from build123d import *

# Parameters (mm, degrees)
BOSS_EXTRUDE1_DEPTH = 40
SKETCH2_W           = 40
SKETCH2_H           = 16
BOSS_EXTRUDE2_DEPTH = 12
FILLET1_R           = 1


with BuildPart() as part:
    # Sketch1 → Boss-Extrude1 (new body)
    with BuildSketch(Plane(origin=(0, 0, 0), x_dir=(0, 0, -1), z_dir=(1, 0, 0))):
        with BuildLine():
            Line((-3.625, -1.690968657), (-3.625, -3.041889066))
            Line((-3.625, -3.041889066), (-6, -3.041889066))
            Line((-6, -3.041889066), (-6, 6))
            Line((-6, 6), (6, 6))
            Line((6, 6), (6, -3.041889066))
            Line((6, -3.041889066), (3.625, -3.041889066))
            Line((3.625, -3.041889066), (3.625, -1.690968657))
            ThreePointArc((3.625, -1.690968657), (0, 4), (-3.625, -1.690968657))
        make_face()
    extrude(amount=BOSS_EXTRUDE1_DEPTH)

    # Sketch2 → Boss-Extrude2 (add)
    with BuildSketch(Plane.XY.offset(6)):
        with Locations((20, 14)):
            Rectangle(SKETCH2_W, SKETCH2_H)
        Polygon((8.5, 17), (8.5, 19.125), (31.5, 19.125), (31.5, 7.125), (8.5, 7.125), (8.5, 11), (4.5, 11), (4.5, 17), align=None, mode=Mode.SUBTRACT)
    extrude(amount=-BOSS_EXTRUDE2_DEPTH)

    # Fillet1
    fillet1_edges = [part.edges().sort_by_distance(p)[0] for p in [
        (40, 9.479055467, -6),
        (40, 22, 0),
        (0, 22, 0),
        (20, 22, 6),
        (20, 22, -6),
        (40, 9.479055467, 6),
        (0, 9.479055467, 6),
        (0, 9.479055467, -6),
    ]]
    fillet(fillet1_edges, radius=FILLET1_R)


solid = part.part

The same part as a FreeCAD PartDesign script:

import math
import FreeCAD as App
import Part
import Sketcher
from FreeCAD import Vector
Q = App.Units.Quantity


def edges_at(feature, points):
    """Names of the edges that pass closest to the given points."""
    edges = feature.Shape.Edges
    near = lambda p: min(range(len(edges)), key=lambda i: edges[i].distToShape(Part.Vertex(*p))[0])
    return sorted({f"Edge{near(p) + 1}" for p in points})

doc = App.newDocument("Part")
params = doc.addObject("Spreadsheet::Sheet", "Params")
for row, (alias, value) in enumerate([
    ("sketch1_radius", "4 mm"),
    ("sketch1_height", "12 mm"),
    ("pad1_length", "40 mm"),
    ("sketch2_width", "40 mm"),
    ("sketch2_width2", "4 mm"),
    ("sketch2_width3", "23 mm"),
    ("sketch2_height", "16 mm"),
    ("sketch2_height2", "12 mm"),
    ("pad2_length", "12 mm"),
    ("fillet_radius", "1 mm"),
], start=1):
    params.set(f"A{row}", alias)
    params.set(f"B{row}", "=" + value)
    params.setAlias(f"B{row}", alias)

body = doc.addObject("PartDesign::Body", "Body")

# Sketch on YZ plane
sketch1 = doc.addObject("Sketcher::SketchObject", "Sketch")
body.addObject(sketch1)
sketch1.AttachmentSupport = (doc.YZ_Plane, [""])
sketch1.MapMode = "FlatFace"
sketch1.addGeometry(Part.LineSegment(Vector(-3, 3.6, 0), Vector(-1.7, 3.6, 0)), False)
sketch1.addGeometry(Part.ArcOfCircle(Part.Circle(Vector(0, 0, 0), Vector(0, 0, 1), 4), math.radians(-115), math.radians(115)), False)
sketch1.addGeometry(Part.LineSegment(Vector(-1.7, -3.6, 0), Vector(-3, -3.6, 0)), False)
sketch1.addGeometry(Part.LineSegment(Vector(-3, -3.6, 0), Vector(-3, -6, 0)), False)
sketch1.addGeometry(Part.LineSegment(Vector(-3, -6, 0), Vector(6, -6, 0)), False)
sketch1.addGeometry(Part.LineSegment(Vector(6, -6, 0), Vector(6, 6, 0)), False)
sketch1.addGeometry(Part.LineSegment(Vector(6, 6, 0), Vector(-3, 6, 0)), False)
sketch1.addGeometry(Part.LineSegment(Vector(-3, 6, 0), Vector(-3, 3.6, 0)), False)
sketch1.addConstraint(Sketcher.Constraint("Coincident", 0, 2, 1, 2))
sketch1.addConstraint(Sketcher.Constraint("Coincident", 1, 1, 2, 1))
sketch1.addConstraint(Sketcher.Constraint("Coincident", 2, 2, 3, 1))
sketch1.addConstraint(Sketcher.Constraint("Coincident", 3, 2, 4, 1))
sketch1.addConstraint(Sketcher.Constraint("Coincident", 4, 2, 5, 1))
sketch1.addConstraint(Sketcher.Constraint("Coincident", 5, 2, 6, 1))
sketch1.addConstraint(Sketcher.Constraint("Coincident", 6, 2, 7, 1))
sketch1.addConstraint(Sketcher.Constraint("Coincident", 7, 2, 0, 1))
sketch1.addConstraint(Sketcher.Constraint("Horizontal", 0))
sketch1.addConstraint(Sketcher.Constraint("Horizontal", 2))
sketch1.addConstraint(Sketcher.Constraint("Vertical", 3))
sketch1.addConstraint(Sketcher.Constraint("Horizontal", 4))
sketch1.addConstraint(Sketcher.Constraint("Vertical", 5))
sketch1.addConstraint(Sketcher.Constraint("Horizontal", 6))
sketch1.addConstraint(Sketcher.Constraint("Vertical", 7))
sketch1.addConstraint(Sketcher.Constraint("Coincident", 1, 3, -1, 1))
sketch1.addConstraint(Sketcher.Constraint("Symmetric", 3, 2, 6, 2, -1))
sketch1.addConstraint(Sketcher.Constraint("Vertical", 0, 2, 1, 1))
sketch1.addConstraint(Sketcher.Constraint("Radius", 1, Q("4 mm")))
sketch1.addConstraint(Sketcher.Constraint("DistanceY", 5, 1, 5, 2, Q("12 mm")))
sketch1.addConstraint(Sketcher.Constraint("DistanceX", -1, 1, 4, 2, Q("6 mm")))
sketch1.addConstraint(Sketcher.Constraint("DistanceY", 3, 2, 3, 1, Q("2.375 mm")))
sketch1.addConstraint(Sketcher.Constraint("DistanceX", 0, 1, 0, 2, Q("1.35092 mm")))
sketch1.setExpression("Constraints[18]", "Params.sketch1_radius")
sketch1.setExpression("Constraints[19]", "Params.sketch1_height")
pad1 = doc.addObject("PartDesign::Pad", "Pad")
body.addObject(pad1)
pad1.Profile = sketch1
pad1.setExpression("Length", "Params.pad1_length")

# Sketch on XY plane
sketch2 = doc.addObject("Sketcher::SketchObject", "Sketch001")
body.addObject(sketch2)
sketch2.AttachmentSupport = (doc.XY_Plane, [""])
sketch2.MapMode = "FlatFace"
sketch2.AttachmentOffset = App.Placement(Vector(0, 0, 6), App.Rotation())
sketch2.addGeometry(Part.LineSegment(Vector(0, 22, 0), Vector(0, 6, 0)), False)
sketch2.addGeometry(Part.LineSegment(Vector(0, 6, 0), Vector(40, 6, 0)), False)
sketch2.addGeometry(Part.LineSegment(Vector(40, 6, 0), Vector(40, 22, 0)), False)
sketch2.addGeometry(Part.LineSegment(Vector(40, 22, 0), Vector(0, 22, 0)), False)
sketch2.addGeometry(Part.LineSegment(Vector(4.5, 17, 0), Vector(8.5, 17, 0)), False)
sketch2.addGeometry(Part.LineSegment(Vector(8.5, 17, 0), Vector(8.5, 19.1, 0)), False)
sketch2.addGeometry(Part.LineSegment(Vector(8.5, 19.1, 0), Vector(31.5, 19.1, 0)), False)
sketch2.addGeometry(Part.LineSegment(Vector(31.5, 19.1, 0), Vector(31.5, 7.1, 0)), False)
sketch2.addGeometry(Part.LineSegment(Vector(31.5, 7.1, 0), Vector(8.5, 7.1, 0)), False)
sketch2.addGeometry(Part.LineSegment(Vector(8.5, 7.1, 0), Vector(8.5, 11, 0)), False)
sketch2.addGeometry(Part.LineSegment(Vector(8.5, 11, 0), Vector(4.5, 11, 0)), False)
sketch2.addGeometry(Part.LineSegment(Vector(4.5, 11, 0), Vector(4.5, 17, 0)), False)
sketch2.addConstraint(Sketcher.Constraint("Coincident", 0, 2, 1, 1))
sketch2.addConstraint(Sketcher.Constraint("Coincident", 1, 2, 2, 1))
sketch2.addConstraint(Sketcher.Constraint("Coincident", 2, 2, 3, 1))
sketch2.addConstraint(Sketcher.Constraint("Coincident", 3, 2, 0, 1))
sketch2.addConstraint(Sketcher.Constraint("Coincident", 4, 2, 5, 1))
sketch2.addConstraint(Sketcher.Constraint("Coincident", 5, 2, 6, 1))
sketch2.addConstraint(Sketcher.Constraint("Coincident", 6, 2, 7, 1))
sketch2.addConstraint(Sketcher.Constraint("Coincident", 7, 2, 8, 1))
sketch2.addConstraint(Sketcher.Constraint("Coincident", 8, 2, 9, 1))
sketch2.addConstraint(Sketcher.Constraint("Coincident", 9, 2, 10, 1))
sketch2.addConstraint(Sketcher.Constraint("Coincident", 10, 2, 11, 1))
sketch2.addConstraint(Sketcher.Constraint("Coincident", 11, 2, 4, 1))
sketch2.addConstraint(Sketcher.Constraint("Vertical", 0))
sketch2.addConstraint(Sketcher.Constraint("Horizontal", 1))
sketch2.addConstraint(Sketcher.Constraint("Vertical", 2))
sketch2.addConstraint(Sketcher.Constraint("Horizontal", 3))
sketch2.addConstraint(Sketcher.Constraint("Horizontal", 4))
sketch2.addConstraint(Sketcher.Constraint("Vertical", 5))
sketch2.addConstraint(Sketcher.Constraint("Horizontal", 6))
sketch2.addConstraint(Sketcher.Constraint("Vertical", 7))
sketch2.addConstraint(Sketcher.Constraint("Horizontal", 8))
sketch2.addConstraint(Sketcher.Constraint("Vertical", 9))
sketch2.addConstraint(Sketcher.Constraint("Horizontal", 10))
sketch2.addConstraint(Sketcher.Constraint("Vertical", 11))
sketch2.addConstraint(Sketcher.Constraint("PointOnObject", 0, 2, -2))
sketch2.addConstraint(Sketcher.Constraint("Vertical", 5, 2, 8, 2))
sketch2.addConstraint(Sketcher.Constraint("DistanceX", 1, 1, 1, 2, Q("40 mm")))
sketch2.addConstraint(Sketcher.Constraint("DistanceX", 4, 1, 4, 2, Q("4 mm")))
sketch2.addConstraint(Sketcher.Constraint("DistanceX", 6, 1, 6, 2, Q("23 mm")))
sketch2.addConstraint(Sketcher.Constraint("DistanceY", 0, 2, 0, 1, Q("16 mm")))
sketch2.addConstraint(Sketcher.Constraint("DistanceY", 7, 2, 7, 1, Q("12 mm")))
sketch2.addConstraint(Sketcher.Constraint("DistanceY", 11, 1, 11, 2, Q("6 mm")))
sketch2.addConstraint(Sketcher.Constraint("DistanceY", -1, 1, 0, 2, Q("6 mm")))
sketch2.addConstraint(Sketcher.Constraint("DistanceY", -1, 1, 4, 2, Q("17 mm")))
sketch2.addConstraint(Sketcher.Constraint("DistanceX", -1, 1, 4, 2, Q("8.5 mm")))
sketch2.addConstraint(Sketcher.Constraint("DistanceY", 5, 1, 5, 2, Q("2.125 mm")))
sketch2.setExpression("Constraints[26]", "Params.sketch2_width")
sketch2.setExpression("Constraints[27]", "Params.sketch2_width2")
sketch2.setExpression("Constraints[28]", "Params.sketch2_width3")
sketch2.setExpression("Constraints[29]", "Params.sketch2_height")
sketch2.setExpression("Constraints[30]", "Params.sketch2_height2")
pad2 = doc.addObject("PartDesign::Pad", "Pad001")
body.addObject(pad2)
pad2.Profile = sketch2
pad2.setExpression("Length", "Params.pad2_length")
pad2.Reversed = True
doc.recompute()

fillet = doc.addObject("PartDesign::Fillet", "Fillet")
body.addObject(fillet)
fillet.Base = (pad2, edges_at(pad2, [
    (40, 9.479, -6),
    (40, 22, 0),
    (0, 22, 0),
    (20, 22, 6),
    (20, 22, -6),
    (40, 9.479, 6),
    (0, 9.479, 6),
    (0, 9.479, -6),
]))
fillet.setExpression("Radius", "Params.fillet_radius")

doc.recompute()
